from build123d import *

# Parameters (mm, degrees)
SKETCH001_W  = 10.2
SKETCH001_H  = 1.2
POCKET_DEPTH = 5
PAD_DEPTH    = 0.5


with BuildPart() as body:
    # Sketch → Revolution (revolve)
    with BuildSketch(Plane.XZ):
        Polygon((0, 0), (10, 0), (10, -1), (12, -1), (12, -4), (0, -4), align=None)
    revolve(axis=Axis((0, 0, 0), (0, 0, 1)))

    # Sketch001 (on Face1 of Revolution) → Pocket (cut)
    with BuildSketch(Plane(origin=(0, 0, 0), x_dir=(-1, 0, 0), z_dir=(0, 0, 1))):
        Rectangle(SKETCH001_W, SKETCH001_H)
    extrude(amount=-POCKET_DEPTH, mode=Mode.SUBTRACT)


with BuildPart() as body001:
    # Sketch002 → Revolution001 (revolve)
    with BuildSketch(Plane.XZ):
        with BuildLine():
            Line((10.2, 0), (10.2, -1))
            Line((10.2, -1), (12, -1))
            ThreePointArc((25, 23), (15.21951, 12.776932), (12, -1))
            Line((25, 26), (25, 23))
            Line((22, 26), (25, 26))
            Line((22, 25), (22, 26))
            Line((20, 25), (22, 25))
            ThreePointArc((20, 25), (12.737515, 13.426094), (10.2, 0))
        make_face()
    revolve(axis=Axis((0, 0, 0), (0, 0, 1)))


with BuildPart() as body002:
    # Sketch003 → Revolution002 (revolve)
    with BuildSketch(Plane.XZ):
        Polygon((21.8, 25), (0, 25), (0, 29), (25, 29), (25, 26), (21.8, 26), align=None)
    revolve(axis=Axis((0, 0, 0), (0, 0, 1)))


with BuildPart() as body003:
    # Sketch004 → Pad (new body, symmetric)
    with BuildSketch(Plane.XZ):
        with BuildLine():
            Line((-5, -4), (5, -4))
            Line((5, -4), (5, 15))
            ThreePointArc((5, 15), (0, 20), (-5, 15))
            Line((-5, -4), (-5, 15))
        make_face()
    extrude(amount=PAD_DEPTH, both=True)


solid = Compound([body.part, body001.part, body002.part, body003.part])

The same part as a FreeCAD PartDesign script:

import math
import FreeCAD as App
import Part
import Sketcher

V = App.Vector


def add_polygon(sketch, points):
    """Adds a closed chain of lines whose ends are joined by coincident constraints."""
    first, n = sketch.GeometryCount, len(points)
    for a, b in zip(points, points[1:] + points[:1]):
        sketch.addGeometry(Part.LineSegment(App.Vector(*a, 0), App.Vector(*b, 0)), False)
    for i in range(n):
        sketch.addConstraint(Sketcher.Constraint("Coincident", first + i, 2, first + (i + 1) % n, 1))

doc = App.newDocument("Part")
body = doc.addObject("PartDesign::Body", "Body")

# Sketch on XZ plane
sketch1 = body.newObject("Sketcher::SketchObject", "Sketch")
sketch1.AttachmentSupport = (doc.getObject("XZ_Plane"), [""])
sketch1.MapMode = "FlatFace"
add_polygon(sketch1, [(10, 0), (0, 0), (0, -4), (12, -4), (12, -1), (10, -1)])  # lines 0-5
sketch1.addConstraint(Sketcher.Constraint("Horizontal", 0))
sketch1.addConstraint(Sketcher.Constraint("Vertical", 1))
sketch1.addConstraint(Sketcher.Constraint("Horizontal", 2))
sketch1.addConstraint(Sketcher.Constraint("Vertical", 3))
sketch1.addConstraint(Sketcher.Constraint("Horizontal", 4))
sketch1.addConstraint(Sketcher.Constraint("Vertical", 5))
sketch1.addConstraint(Sketcher.Constraint("Coincident", 0, 2, -1, 1))
sketch1.addConstraint(Sketcher.Constraint("DistanceX", 0, 2, 0, 1, 10.0))
sketch1.addConstraint(Sketcher.Constraint("DistanceX", 2, 1, 2, 2, 12.0))
sketch1.addConstraint(Sketcher.Constraint("DistanceY", 1, 2, 1, 1, 4.0))
sketch1.addConstraint(Sketcher.Constraint("DistanceY", 3, 1, 3, 2, 3.0))
revolution = body.newObject("PartDesign::Revolution", "Revolution")
revolution.Profile = sketch1
revolution.ReferenceAxis = (sketch1, ["V_Axis"])
revolution.Angle = 360

# Sketch on XY plane
sketch2 = body.newObject("Sketcher::SketchObject", "Sketch001")
sketch2.AttachmentSupport = (doc.getObject("XY_Plane"), [""])
sketch2.MapMode = "FlatFace"
add_polygon(sketch2, [(5.1, -0.6), (5.1, 0.6), (-5.1, 0.6), (-5.1, -0.6)])  # lines 0-3
sketch2.addConstraint(Sketcher.Constraint("Vertical", 0))
sketch2.addConstraint(Sketcher.Constraint("Horizontal", 1))
sketch2.addConstraint(Sketcher.Constraint("Vertical", 2))
sketch2.addConstraint(Sketcher.Constraint("Horizontal", 3))
sketch2.addConstraint(Sketcher.Constraint("Symmetric", 0, 2, 2, 2, -1, 1))
sketch2.addConstraint(Sketcher.Constraint("DistanceX", 1, 2, 1, 1, 10.2))
sketch2.addConstraint(Sketcher.Constraint("DistanceY", 0, 1, 0, 2, 1.2))
pocket1 = body.newObject("PartDesign::Pocket", "Pocket")
pocket1.Profile = sketch2
pocket1.Length = 5
body2 = doc.addObject("PartDesign::Body", "Body001")

# Sketch on XZ plane
sketch3 = body2.newObject("Sketcher::SketchObject", "Sketch002")
sketch3.AttachmentSupport = (doc.getObject("XZ_Plane001"), [""])
sketch3.MapMode = "FlatFace"
sketch3.addGeometry(Part.LineSegment(V(10.2, 0, 0), V(10.2, -1, 0)), False)
sketch3.addGeometry(Part.LineSegment(V(10.2, -1, 0), V(12, -1, 0)), False)
sketch3.addGeometry(Part.ArcOfCircle(Part.Circle(V(38.8, 0, 0), V(0, 0, 1), 26.8), math.radians(121), math.radians(182)), False)
sketch3.addGeometry(Part.LineSegment(V(25, 23, 0), V(25, 26, 0)), False)
sketch3.addGeometry(Part.LineSegment(V(25, 26, 0), V(22, 26, 0)), False)
sketch3.addGeometry(Part.LineSegment(V(22, 26, 0), V(22, 25, 0)), False)
sketch3.addGeometry(Part.LineSegment(V(22, 25, 0), V(20, 25, 0)), False)
sketch3.addGeometry(Part.ArcOfCircle(Part.Circle(V(47, 0, 0), V(0, 0, 1), 36.8), math.radians(137), math.radians(180)), False)
sketch3.addConstraint(Sketcher.Constraint("Coincident", 0, 2, 1, 1))
sketch3.addConstraint(Sketcher.Constraint("Coincident", 1, 2, 2, 2))
sketch3.addConstraint(Sketcher.Constraint("Coincident", 2, 1, 3, 1))
sketch3.addConstraint(Sketcher.Constraint("Coincident", 3, 2, 4, 1))
sketch3.addConstraint(Sketcher.Constraint("Coincident", 4, 2, 5, 1))
sketch3.addConstraint(Sketcher.Constraint("Coincident", 5, 2, 6, 1))
sketch3.addConstraint(Sketcher.Constraint("Coincident", 6, 2, 7, 1))
sketch3.addConstraint(Sketcher.Constraint("Tangent", 7, 2, 0, 1))
sketch3.addConstraint(Sketcher.Constraint("Vertical", 0))
sketch3.addConstraint(Sketcher.Constraint("Horizontal", 1))
sketch3.addConstraint(Sketcher.Constraint("Vertical", 3))
sketch3.addConstraint(Sketcher.Constraint("Horizontal", 4))
sketch3.addConstraint(Sketcher.Constraint("Vertical", 5))
sketch3.addConstraint(Sketcher.Constraint("Horizontal", 6))
sketch3.addConstraint(Sketcher.Constraint("PointOnObject", 2, 3, -1))
sketch3.addConstraint(Sketcher.Constraint("PointOnObject", 7, 3, -1))
sketch3.addConstraint(Sketcher.Constraint("Equal", 4, 3))
sketch3.addConstraint(Sketcher.Constraint("Equal", 0, 5))
sketch3.addConstraint(Sketcher.Constraint("DistanceX", 4, 2, 4, 1, 3.0))
sketch3.addConstraint(Sketcher.Constraint("DistanceX", 6, 2, 6, 1, 2.0))
sketch3.addConstraint(Sketcher.Constraint("DistanceY", 0, 2, 0, 1, 1.0))
sketch3.addConstraint(Sketcher.Constraint("DistanceX", 1, 1, 1, 2, 1.8))
sketch3.addConstraint(Sketcher.Constraint("DistanceX", -1, 1, 1, 2, 12.0))
sketch3.addConstraint(Sketcher.Constraint("DistanceX", -1, 1, 2, 1, 25.0))
sketch3.addConstraint(Sketcher.Constraint("DistanceY", -1, 1, 2, 1, 23.0))
revolution2 = body2.newObject("PartDesign::Revolution", "Revolution001")
revolution2.Profile = sketch3
revolution2.ReferenceAxis = (sketch3, ["V_Axis"])
revolution2.Angle = 360
body3 = doc.addObject("PartDesign::Body", "Body002")

# Sketch on XZ plane
sketch4 = body3.newObject("Sketcher::SketchObject", "Sketch003")
sketch4.AttachmentSupport = (doc.getObject("XZ_Plane002"), [""])
sketch4.MapMode = "FlatFace"
add_polygon(sketch4, [(0, 25), (21.8, 25), (21.8, 26), (25, 26), (25, 29), (0, 29)])  # lines 0-5
sketch4.addConstraint(Sketcher.Constraint("Horizontal", 0))
sketch4.addConstraint(Sketcher.Constraint("Vertical", 1))
sketch4.addConstraint(Sketcher.Constraint("Horizontal", 2))
sketch4.addConstraint(Sketcher.Constraint("Vertical", 3))
sketch4.addConstraint(Sketcher.Constraint("Horizontal", 4))
sketch4.addConstraint(Sketcher.Constraint("Vertical", 5))
sketch4.addConstraint(Sketcher.Constraint("PointOnObject", 4, 2, -2))
sketch4.addConstraint(Sketcher.Constraint("DistanceX", 4, 2, 4, 1, 25.0))
sketch4.addConstraint(Sketcher.Constraint("DistanceY", 1, 1, 1, 2, 1.0))
sketch4.addConstraint(Sketcher.Constraint("DistanceY", 3, 1, 3, 2, 3.0))
sketch4.addConstraint(Sketcher.Constraint("DistanceX", 0, 1, 0, 2, 21.8))
sketch4.addConstraint(Sketcher.Constraint("DistanceY", -1, 1, 0, 2, 25.0))
revolution3 = body3.newObject("PartDesign::Revolution", "Revolution002")
revolution3.Profile = sketch4
revolution3.ReferenceAxis = (sketch4, ["V_Axis"])
revolution3.Angle = 360
body4 = doc.addObject("PartDesign::Body", "Body003")

# Sketch on XZ plane
sketch5 = body4.newObject("Sketcher::SketchObject", "Sketch004")
sketch5.AttachmentSupport = (doc.getObject("XZ_Plane003"), [""])
sketch5.MapMode = "FlatFace"
sketch5.addGeometry(Part.LineSegment(V(-5, -4, 0), V(5, -4, 0)), False)
sketch5.addGeometry(Part.LineSegment(V(5, -4, 0), V(5, 15, 0)), False)
sketch5.addGeometry(Part.ArcOfCircle(Part.Circle(V(0, 15, 0), V(0, 0, 1), 5), math.radians(0), math.radians(180)), False)
sketch5.addGeometry(Part.LineSegment(V(-5, 15, 0), V(-5, -4, 0)), False)
sketch5.addConstraint(Sketcher.Constraint("Coincident", 0, 2, 1, 1))
sketch5.addConstraint(Sketcher.Constraint("Tangent", 1, 2, 2, 1))
sketch5.addConstraint(Sketcher.Constraint("Tangent", 2, 2, 3, 1))
sketch5.addConstraint(Sketcher.Constraint("Coincident", 3, 2, 0, 1))
sketch5.addConstraint(Sketcher.Constraint("Horizontal", 0))
sketch5.addConstraint(Sketcher.Constraint("Vertical", 1))
sketch5.addConstraint(Sketcher.Constraint("Vertical", 3))
sketch5.addConstraint(Sketcher.Constraint("PointOnObject", 2, 3, -2))
sketch5.addConstraint(Sketcher.Constraint("Radius", 2, 5.0))
sketch5.addConstraint(Sketcher.Constraint("DistanceY", 1, 1, 1, 2, 19.0))
sketch5.addConstraint(Sketcher.Constraint("DistanceY", -1, 1, 2, 3, 15.0))
pad1 = body4.newObject("PartDesign::Pad", "Pad")
pad1.Profile = sketch5
pad1.Length = 1
pad1.Midplane = True

doc.recompute()
